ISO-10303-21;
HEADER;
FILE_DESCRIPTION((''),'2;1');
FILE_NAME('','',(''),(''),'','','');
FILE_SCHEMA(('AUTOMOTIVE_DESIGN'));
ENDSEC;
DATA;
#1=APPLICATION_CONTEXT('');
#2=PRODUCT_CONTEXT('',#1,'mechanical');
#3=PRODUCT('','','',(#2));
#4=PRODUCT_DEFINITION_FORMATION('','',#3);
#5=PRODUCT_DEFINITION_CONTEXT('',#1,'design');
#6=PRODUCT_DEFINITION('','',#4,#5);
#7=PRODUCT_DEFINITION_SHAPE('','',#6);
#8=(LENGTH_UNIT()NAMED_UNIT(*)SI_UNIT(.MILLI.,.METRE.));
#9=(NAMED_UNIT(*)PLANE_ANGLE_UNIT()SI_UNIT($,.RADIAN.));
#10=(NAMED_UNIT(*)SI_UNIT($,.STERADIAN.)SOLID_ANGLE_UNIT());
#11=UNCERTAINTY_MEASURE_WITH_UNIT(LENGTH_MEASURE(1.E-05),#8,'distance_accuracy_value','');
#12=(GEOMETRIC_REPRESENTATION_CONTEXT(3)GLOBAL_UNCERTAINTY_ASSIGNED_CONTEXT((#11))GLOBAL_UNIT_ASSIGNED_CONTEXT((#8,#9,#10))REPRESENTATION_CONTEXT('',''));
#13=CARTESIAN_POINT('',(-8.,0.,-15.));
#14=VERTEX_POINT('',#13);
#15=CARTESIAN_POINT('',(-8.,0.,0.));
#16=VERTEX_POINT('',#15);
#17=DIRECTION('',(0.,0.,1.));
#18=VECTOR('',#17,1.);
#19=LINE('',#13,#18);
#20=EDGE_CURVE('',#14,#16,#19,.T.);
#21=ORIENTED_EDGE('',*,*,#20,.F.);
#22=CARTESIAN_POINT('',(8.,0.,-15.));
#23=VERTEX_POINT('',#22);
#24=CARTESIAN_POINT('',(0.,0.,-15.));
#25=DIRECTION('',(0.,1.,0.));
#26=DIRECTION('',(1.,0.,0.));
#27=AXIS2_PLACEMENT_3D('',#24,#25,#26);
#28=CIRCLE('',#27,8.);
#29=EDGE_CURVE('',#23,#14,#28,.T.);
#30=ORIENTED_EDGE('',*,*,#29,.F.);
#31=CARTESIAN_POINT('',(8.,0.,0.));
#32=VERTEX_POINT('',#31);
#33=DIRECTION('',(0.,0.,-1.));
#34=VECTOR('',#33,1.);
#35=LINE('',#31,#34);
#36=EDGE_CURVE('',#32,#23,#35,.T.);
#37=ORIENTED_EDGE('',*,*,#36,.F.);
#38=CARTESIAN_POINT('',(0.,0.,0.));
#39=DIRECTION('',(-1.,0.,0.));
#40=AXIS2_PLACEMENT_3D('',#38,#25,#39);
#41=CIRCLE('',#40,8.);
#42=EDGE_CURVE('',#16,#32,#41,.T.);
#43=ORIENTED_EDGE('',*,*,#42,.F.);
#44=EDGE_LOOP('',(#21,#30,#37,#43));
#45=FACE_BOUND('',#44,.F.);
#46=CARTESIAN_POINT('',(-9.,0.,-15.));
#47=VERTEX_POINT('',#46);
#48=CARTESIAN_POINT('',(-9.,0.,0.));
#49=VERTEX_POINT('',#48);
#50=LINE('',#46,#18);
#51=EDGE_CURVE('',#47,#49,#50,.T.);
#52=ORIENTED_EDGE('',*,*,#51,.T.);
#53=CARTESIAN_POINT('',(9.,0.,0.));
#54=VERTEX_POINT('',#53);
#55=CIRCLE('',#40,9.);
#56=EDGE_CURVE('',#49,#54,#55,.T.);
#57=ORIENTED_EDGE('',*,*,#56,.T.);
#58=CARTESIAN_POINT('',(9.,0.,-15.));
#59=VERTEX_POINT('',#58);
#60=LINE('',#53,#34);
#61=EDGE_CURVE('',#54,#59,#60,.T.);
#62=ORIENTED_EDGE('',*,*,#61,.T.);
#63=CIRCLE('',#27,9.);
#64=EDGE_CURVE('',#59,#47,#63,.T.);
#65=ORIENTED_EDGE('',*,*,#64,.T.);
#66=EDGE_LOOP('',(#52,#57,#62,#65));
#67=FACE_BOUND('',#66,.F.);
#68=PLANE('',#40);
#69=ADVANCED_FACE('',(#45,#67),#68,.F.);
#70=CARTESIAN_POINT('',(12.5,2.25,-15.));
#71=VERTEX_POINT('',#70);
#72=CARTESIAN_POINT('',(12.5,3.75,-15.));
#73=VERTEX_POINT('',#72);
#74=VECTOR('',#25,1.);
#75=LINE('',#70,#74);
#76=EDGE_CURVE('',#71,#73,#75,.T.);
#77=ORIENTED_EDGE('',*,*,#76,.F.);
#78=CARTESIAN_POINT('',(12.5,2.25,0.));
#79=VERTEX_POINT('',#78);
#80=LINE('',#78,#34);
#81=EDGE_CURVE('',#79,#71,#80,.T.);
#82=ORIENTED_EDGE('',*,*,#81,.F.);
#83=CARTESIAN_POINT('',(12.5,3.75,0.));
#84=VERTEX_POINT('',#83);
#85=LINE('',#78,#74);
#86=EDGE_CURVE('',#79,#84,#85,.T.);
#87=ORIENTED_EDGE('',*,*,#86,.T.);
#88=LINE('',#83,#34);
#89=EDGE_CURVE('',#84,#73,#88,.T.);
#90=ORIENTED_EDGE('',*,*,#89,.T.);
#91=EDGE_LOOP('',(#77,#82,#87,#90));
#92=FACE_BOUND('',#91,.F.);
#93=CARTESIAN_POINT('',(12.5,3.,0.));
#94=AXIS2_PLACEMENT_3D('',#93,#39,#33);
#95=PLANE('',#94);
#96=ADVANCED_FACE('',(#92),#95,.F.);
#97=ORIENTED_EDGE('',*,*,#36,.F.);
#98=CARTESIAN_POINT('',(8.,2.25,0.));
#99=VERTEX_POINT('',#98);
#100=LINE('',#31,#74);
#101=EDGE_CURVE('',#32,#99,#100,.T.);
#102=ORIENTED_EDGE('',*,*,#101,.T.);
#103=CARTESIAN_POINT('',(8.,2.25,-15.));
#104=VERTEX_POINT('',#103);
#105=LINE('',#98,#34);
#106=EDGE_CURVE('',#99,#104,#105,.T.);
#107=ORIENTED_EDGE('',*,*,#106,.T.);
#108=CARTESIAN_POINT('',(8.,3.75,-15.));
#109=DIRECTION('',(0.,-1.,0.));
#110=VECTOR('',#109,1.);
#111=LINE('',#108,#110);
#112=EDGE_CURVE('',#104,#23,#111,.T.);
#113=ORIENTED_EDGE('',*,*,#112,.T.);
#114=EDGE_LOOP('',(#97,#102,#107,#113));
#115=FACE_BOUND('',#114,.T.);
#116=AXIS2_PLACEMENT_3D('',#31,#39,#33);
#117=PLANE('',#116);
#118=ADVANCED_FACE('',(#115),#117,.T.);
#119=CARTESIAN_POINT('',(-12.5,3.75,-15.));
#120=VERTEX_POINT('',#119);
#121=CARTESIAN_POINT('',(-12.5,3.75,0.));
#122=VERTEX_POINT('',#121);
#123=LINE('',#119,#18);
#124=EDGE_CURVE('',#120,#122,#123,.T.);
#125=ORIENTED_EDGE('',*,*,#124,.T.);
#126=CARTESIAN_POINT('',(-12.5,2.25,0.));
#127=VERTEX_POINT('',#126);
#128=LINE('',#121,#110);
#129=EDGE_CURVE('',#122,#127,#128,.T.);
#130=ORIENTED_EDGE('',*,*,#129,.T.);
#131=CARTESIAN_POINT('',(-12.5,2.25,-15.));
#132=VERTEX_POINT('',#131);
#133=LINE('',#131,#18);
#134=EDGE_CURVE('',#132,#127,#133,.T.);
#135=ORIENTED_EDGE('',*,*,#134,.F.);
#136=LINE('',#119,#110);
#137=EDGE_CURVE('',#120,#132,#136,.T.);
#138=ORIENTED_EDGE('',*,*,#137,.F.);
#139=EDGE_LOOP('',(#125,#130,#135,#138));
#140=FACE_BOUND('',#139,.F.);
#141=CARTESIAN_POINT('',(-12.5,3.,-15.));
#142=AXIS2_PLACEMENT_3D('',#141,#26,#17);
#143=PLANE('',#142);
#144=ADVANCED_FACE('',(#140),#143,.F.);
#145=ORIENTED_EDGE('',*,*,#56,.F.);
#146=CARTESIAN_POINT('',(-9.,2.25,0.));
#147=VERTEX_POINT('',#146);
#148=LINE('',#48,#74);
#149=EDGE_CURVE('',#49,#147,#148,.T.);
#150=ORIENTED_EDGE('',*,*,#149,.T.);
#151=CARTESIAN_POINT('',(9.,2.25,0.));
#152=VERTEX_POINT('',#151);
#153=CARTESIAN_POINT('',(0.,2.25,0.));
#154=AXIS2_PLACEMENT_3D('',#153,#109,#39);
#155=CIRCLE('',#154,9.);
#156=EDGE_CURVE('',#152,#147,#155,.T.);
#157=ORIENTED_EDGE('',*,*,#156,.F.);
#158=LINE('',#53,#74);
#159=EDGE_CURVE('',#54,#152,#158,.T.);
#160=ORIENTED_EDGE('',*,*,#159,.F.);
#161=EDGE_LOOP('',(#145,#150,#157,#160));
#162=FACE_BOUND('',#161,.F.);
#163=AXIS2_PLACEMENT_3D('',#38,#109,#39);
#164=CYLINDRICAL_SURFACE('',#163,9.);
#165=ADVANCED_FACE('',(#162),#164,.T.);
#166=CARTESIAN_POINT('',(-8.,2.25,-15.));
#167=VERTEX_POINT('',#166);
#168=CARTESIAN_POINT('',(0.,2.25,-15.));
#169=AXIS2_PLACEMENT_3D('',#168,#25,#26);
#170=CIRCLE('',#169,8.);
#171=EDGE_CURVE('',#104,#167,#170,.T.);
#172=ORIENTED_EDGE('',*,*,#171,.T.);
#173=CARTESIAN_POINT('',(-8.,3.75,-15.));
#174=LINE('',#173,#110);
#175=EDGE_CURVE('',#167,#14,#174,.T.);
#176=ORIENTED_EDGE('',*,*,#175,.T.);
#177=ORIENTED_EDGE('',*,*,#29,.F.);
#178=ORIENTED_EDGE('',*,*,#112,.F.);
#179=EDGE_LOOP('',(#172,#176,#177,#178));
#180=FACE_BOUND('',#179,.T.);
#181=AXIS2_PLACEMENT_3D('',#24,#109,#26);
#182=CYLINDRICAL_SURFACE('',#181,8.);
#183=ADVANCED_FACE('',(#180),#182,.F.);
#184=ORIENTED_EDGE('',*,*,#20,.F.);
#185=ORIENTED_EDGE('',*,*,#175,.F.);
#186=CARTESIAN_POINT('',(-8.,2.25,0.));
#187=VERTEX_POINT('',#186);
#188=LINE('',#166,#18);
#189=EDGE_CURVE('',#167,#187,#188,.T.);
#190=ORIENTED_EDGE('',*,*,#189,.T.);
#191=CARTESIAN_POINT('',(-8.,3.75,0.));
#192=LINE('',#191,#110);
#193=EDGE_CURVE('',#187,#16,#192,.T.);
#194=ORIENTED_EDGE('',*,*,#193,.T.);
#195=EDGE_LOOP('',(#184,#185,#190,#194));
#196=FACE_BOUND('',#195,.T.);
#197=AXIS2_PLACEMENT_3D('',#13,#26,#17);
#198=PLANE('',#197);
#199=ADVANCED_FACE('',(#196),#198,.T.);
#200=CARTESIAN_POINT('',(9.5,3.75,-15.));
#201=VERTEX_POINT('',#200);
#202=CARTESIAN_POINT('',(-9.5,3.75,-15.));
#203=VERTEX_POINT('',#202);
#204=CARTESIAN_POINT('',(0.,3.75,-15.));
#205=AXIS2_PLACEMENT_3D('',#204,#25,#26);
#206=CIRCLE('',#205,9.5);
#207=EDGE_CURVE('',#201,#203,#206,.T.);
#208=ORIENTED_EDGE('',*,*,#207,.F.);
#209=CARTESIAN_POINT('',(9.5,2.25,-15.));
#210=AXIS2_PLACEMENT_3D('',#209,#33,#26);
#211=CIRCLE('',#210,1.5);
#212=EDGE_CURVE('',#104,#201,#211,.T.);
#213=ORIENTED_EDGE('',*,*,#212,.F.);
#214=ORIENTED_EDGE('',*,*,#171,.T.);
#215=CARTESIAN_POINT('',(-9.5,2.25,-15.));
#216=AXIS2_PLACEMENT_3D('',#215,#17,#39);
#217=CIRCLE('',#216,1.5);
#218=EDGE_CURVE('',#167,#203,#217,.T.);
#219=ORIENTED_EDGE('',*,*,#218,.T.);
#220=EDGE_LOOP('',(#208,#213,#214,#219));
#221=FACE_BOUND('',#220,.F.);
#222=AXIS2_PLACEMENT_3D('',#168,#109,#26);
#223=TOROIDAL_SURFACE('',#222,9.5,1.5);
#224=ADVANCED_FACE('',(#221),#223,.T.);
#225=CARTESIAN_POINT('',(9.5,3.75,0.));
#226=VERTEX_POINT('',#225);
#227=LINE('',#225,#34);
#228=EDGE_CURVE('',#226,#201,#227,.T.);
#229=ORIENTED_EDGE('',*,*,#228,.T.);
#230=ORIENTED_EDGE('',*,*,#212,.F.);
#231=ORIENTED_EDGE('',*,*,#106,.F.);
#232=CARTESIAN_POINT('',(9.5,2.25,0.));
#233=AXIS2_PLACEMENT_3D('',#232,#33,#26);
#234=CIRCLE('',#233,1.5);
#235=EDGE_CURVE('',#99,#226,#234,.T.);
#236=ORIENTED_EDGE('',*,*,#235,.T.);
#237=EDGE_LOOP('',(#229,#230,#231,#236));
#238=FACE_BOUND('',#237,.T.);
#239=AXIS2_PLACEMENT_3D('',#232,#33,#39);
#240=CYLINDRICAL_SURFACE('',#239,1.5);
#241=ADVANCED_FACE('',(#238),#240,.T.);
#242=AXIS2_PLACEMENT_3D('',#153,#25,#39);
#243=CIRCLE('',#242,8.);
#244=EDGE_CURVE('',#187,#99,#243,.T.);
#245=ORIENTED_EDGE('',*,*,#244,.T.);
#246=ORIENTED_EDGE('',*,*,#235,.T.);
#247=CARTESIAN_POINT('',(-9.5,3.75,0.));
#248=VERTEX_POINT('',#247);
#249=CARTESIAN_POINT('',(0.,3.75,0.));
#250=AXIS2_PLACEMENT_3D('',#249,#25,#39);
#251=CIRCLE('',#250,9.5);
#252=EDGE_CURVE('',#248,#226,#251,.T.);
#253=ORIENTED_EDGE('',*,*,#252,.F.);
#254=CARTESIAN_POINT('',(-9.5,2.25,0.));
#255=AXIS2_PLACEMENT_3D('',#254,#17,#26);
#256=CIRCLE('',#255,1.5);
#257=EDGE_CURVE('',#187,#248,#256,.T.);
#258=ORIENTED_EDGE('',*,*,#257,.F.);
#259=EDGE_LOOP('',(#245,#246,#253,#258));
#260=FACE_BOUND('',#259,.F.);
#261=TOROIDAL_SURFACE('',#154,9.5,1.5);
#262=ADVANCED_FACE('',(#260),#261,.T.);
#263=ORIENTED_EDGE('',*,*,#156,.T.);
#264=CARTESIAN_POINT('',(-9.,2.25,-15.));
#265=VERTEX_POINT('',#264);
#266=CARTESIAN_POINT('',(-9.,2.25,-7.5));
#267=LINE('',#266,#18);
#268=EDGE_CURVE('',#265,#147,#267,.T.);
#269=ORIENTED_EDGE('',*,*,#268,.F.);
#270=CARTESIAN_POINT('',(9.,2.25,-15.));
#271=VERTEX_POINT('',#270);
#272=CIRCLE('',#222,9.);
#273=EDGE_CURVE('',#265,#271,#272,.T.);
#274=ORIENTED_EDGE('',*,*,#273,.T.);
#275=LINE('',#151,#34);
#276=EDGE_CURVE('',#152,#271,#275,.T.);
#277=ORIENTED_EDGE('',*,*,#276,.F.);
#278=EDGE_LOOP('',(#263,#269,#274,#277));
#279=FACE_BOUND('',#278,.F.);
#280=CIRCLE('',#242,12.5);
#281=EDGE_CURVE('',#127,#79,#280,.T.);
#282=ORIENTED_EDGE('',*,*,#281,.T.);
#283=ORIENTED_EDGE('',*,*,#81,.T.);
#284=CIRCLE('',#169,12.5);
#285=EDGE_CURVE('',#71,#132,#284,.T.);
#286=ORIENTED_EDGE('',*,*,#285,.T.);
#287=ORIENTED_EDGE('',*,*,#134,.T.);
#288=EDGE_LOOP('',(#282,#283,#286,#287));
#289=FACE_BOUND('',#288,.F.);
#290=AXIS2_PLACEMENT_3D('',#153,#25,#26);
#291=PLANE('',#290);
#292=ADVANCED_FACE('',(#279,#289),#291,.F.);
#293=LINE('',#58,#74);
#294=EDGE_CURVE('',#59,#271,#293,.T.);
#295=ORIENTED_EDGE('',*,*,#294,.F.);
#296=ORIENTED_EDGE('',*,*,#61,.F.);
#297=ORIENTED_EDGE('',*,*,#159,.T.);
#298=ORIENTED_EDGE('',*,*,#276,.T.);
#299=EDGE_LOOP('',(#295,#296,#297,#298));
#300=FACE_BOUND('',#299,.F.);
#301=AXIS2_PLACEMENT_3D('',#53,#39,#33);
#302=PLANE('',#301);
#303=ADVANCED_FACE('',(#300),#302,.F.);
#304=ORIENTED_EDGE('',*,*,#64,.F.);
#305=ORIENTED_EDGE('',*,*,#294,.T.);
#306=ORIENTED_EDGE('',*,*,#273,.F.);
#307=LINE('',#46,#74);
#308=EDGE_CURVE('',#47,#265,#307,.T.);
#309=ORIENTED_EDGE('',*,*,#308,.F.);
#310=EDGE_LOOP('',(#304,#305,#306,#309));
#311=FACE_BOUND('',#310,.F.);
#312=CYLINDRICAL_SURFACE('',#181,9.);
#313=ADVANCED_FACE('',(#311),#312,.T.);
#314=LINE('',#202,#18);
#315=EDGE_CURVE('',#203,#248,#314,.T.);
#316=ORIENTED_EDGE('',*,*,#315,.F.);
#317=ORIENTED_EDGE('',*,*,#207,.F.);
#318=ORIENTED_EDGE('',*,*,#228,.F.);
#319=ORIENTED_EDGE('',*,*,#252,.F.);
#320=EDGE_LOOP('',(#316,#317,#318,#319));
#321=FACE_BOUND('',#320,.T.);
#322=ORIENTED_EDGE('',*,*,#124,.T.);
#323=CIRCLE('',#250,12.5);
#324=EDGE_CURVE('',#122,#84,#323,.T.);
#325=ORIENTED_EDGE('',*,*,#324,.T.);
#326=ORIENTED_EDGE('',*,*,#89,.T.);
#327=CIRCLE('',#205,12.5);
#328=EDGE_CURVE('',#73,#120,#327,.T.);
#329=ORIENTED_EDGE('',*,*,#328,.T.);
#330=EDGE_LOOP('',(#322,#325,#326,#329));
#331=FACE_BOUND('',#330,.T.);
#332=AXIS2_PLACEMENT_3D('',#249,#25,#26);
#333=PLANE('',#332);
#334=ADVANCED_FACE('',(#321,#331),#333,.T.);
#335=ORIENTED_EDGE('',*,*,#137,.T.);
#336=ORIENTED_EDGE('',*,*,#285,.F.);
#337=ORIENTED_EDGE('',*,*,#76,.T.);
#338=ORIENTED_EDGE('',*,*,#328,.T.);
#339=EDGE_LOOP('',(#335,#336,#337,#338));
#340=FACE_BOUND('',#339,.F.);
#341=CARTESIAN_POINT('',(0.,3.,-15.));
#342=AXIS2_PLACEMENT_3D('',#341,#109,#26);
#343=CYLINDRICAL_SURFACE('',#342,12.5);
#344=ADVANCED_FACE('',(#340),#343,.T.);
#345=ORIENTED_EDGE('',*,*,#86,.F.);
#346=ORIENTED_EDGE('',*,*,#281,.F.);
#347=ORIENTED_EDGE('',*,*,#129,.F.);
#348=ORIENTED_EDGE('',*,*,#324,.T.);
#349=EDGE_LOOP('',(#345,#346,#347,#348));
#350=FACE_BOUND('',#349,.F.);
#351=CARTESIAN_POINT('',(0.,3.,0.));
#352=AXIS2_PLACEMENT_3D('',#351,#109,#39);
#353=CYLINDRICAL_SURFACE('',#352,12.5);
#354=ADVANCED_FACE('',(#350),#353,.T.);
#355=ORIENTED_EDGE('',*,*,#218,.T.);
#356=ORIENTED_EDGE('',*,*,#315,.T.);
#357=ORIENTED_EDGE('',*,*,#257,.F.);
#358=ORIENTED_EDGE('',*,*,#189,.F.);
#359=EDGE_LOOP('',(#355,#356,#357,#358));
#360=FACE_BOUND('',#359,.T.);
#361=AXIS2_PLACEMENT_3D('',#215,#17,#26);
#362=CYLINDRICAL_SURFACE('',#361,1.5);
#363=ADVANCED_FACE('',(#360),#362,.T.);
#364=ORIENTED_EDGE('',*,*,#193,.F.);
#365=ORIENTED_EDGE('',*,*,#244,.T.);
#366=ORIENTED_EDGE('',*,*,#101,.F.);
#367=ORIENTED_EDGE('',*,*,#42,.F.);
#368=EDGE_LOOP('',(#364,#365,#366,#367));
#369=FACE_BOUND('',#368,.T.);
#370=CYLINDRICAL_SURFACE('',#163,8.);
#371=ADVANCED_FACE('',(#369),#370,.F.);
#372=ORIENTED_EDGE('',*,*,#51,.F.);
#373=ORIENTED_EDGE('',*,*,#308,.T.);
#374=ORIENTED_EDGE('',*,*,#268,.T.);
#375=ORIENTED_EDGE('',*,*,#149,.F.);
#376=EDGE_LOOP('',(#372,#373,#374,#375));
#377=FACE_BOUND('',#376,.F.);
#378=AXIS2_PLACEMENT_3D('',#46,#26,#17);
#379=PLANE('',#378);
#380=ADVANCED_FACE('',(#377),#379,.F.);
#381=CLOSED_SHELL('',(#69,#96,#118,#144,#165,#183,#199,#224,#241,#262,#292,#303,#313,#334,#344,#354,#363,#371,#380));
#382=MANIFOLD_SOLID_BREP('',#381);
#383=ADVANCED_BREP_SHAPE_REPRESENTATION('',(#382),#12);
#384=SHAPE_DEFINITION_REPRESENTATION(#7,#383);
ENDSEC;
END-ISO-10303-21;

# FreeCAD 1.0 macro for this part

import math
import FreeCAD as App
import Part
import Sketcher
Q = App.Units.Quantity


def edges_at(feature, points):
    """Names of the edges that pass closest to the given points."""
    edges = feature.Shape.Edges
    near = lambda p: min(range(len(edges)), key=lambda i: edges[i].distToShape(Part.Vertex(*p))[0])
    return sorted({f"Edge{near(p) + 1}" for p in points})

doc = App.newDocument("Part")
params = doc.addObject("Spreadsheet::Sheet", "Params")
for row, (alias, value) in enumerate([
    ("sketch1_radius", "9 mm"),
    ("sketch1_radius2", "8 mm"),
    ("sketch1_height", "15 mm"),
    ("pad1_length", "3 mm"),
    ("sketch2_radius", "8 mm"),
    ("sketch2_radius2", "12.5 mm"),
    ("sketch2_height", "15 mm"),
    ("pad2_length", "1.5 mm"),
    ("fillet_radius", "1.5 mm"),
], start=1):
    params.set(f"A{row}", alias)
    params.set(f"B{row}", "=" + value)
    params.setAlias(f"B{row}", alias)

body = doc.addObject("PartDesign::Body", "Body")

sketch1 = body.newObject("Sketcher::SketchObject", "Sketch")
sketch1.AttachmentSupport = (doc.getObject("XZ_Plane"), [""])
sketch1.MapMode = "FlatFace"
sketch1.addGeometry(Part.ArcOfCircle(Part.Circle(App.Vector(0, 0, 0), App.Vector(0, 0, 1), 9), math.radians(0), math.radians(180)), False)
sketch1.addGeometry(Part.LineSegment(App.Vector(9, 0, 0), App.Vector(9, -15, 0)), False)
sketch1.addGeometry(Part.ArcOfCircle(Part.Circle(App.Vector(0, -15, 0), App.Vector(0, 0, 1), 9), math.radians(180), math.radians(360)), False)
sketch1.addGeometry(Part.LineSegment(App.Vector(-9, -15, 0), App.Vector(-9, 0, 0)), False)
sketch1.addGeometry(Part.LineSegment(App.Vector(8, -15, 0), App.Vector(8, 0, 0)), False)
sketch1.addGeometry(Part.ArcOfCircle(Part.Circle(App.Vector(0, 0, 0), App.Vector(0, 0, 1), 8), math.radians(0), math.radians(180)), False)
sketch1.addGeometry(Part.LineSegment(App.Vector(-8, 0, 0), App.Vector(-8, -15, 0)), False)
sketch1.addGeometry(Part.ArcOfCircle(Part.Circle(App.Vector(0, -15, 0), App.Vector(0, 0, 1), 8), math.radians(180), math.radians(360)), False)
sketch1.addConstraint(Sketcher.Constraint("Tangent", 0, 1, 1, 1))
sketch1.addConstraint(Sketcher.Constraint("Tangent", 1, 2, 2, 2))
sketch1.addConstraint(Sketcher.Constraint("Tangent", 2, 1, 3, 1))
sketch1.addConstraint(Sketcher.Constraint("Tangent", 3, 2, 0, 2))
sketch1.addConstraint(Sketcher.Constraint("Tangent", 4, 2, 5, 1))
sketch1.addConstraint(Sketcher.Constraint("Tangent", 5, 2, 6, 1))
sketch1.addConstraint(Sketcher.Constraint("Tangent", 6, 2, 7, 1))
sketch1.addConstraint(Sketcher.Constraint("Tangent", 7, 2, 4, 1))
sketch1.addConstraint(Sketcher.Constraint("Vertical", 1))
sketch1.addConstraint(Sketcher.Constraint("Vertical", 3))
sketch1.addConstraint(Sketcher.Constraint("Vertical", 4))
sketch1.addConstraint(Sketcher.Constraint("Vertical", 6))
sketch1.addConstraint(Sketcher.Constraint("Coincident", 0, 3, -1, 1))
sketch1.addConstraint(Sketcher.Constraint("Coincident", 5, 3, -1, 1))
sketch1.addConstraint(Sketcher.Constraint("Horizontal", 7, 3, 1, 2))
sketch1.addConstraint(Sketcher.Constraint("Radius", 0, Q("9 mm")))
sketch1.addConstraint(Sketcher.Constraint("Radius", 5, Q("8 mm")))
sketch1.addConstraint(Sketcher.Constraint("DistanceY", 1, 2, 1, 1, Q("15 mm")))
sketch1.setExpression("Constraints[15]", "Params.sketch1_radius")
sketch1.setExpression("Constraints[16]", "Params.sketch1_radius2")
sketch1.setExpression("Constraints[17]", "Params.sketch1_height")
pad1 = body.newObject("PartDesign::Pad", "Pad")
pad1.Profile = sketch1
pad1.setExpression("Length", "Params.pad1_length")
pad1.Reversed = True

sketch2 = body.newObject("Sketcher::SketchObject", "Sketch001")
sketch2.AttachmentSupport = (doc.getObject("XZ_Plane"), [""])
sketch2.MapMode = "FlatFace"
sketch2.AttachmentOffset = App.Placement(App.Vector(0, 0, -3), App.Rotation())
sketch2.addGeometry(Part.ArcOfCircle(Part.Circle(App.Vector(0, 0, 0), App.Vector(0, 0, 1), 12), math.radians(0), math.radians(180)), False)
sketch2.addGeometry(Part.LineSegment(App.Vector(12, 0, 0), App.Vector(12, -15, 0)), False)
sketch2.addGeometry(Part.ArcOfCircle(Part.Circle(App.Vector(0, -15, 0), App.Vector(0, 0, 1), 12), math.radians(180), math.radians(360)), False)
sketch2.addGeometry(Part.LineSegment(App.Vector(-12, -15, 0), App.Vector(-12, 0, 0)), False)
sketch2.addGeometry(Part.LineSegment(App.Vector(8, -15, 0), App.Vector(8, 0, 0)), False)
sketch2.addGeometry(Part.ArcOfCircle(Part.Circle(App.Vector(0, 0, 0), App.Vector(0, 0, 1), 8), math.radians(0), math.radians(180)), False)
sketch2.addGeometry(Part.LineSegment(App.Vector(-8, 0, 0), App.Vector(-8, -15, 0)), False)
sketch2.addGeometry(Part.ArcOfCircle(Part.Circle(App.Vector(0, -15, 0), App.Vector(0, 0, 1), 8), math.radians(180), math.radians(360)), False)
sketch2.addConstraint(Sketcher.Constraint("Tangent", 0, 1, 1, 1))
sketch2.addConstraint(Sketcher.Constraint("Tangent", 1, 2, 2, 2))
sketch2.addConstraint(Sketcher.Constraint("Tangent", 2, 1, 3, 1))
sketch2.addConstraint(Sketcher.Constraint("Tangent", 3, 2, 0, 2))
sketch2.addConstraint(Sketcher.Constraint("Tangent", 4, 2, 5, 1))
sketch2.addConstraint(Sketcher.Constraint("Tangent", 5, 2, 6, 1))
sketch2.addConstraint(Sketcher.Constraint("Tangent", 6, 2, 7, 1))
sketch2.addConstraint(Sketcher.Constraint("Tangent", 7, 2, 4, 1))
sketch2.addConstraint(Sketcher.Constraint("Vertical", 1))
sketch2.addConstraint(Sketcher.Constraint("Vertical", 3))
sketch2.addConstraint(Sketcher.Constraint("Vertical", 4))
sketch2.addConstraint(Sketcher.Constraint("Vertical", 6))
sketch2.addConstraint(Sketcher.Constraint("Coincident", 0, 3, -1, 1))
sketch2.addConstraint(Sketcher.Constraint("Coincident", 5, 3, -1, 1))
sketch2.addConstraint(Sketcher.Constraint("Horizontal", 7, 3, 1, 2))
sketch2.addConstraint(Sketcher.Constraint("Radius", 5, Q("8 mm")))
sketch2.addConstraint(Sketcher.Constraint("Radius", 0, Q("12.5 mm")))
sketch2.addConstraint(Sketcher.Constraint("DistanceY", 1, 2, 1, 1, Q("15 mm")))
sketch2.setExpression("Constraints[15]", "Params.sketch2_radius")
sketch2.setExpression("Constraints[16]", "Params.sketch2_radius2")
sketch2.setExpression("Constraints[17]", "Params.sketch2_height")
pad2 = body.newObject("PartDesign::Pad", "Pad001")
pad2.Profile = sketch2
pad2.setExpression("Length", "Params.pad2_length")
pad2.Midplane = True
doc.recompute()

fillet = body.newObject("PartDesign::Fillet", "Fillet")
fillet.Base = (pad2, edges_at(pad2, [
    (0, 3.75, -23),
    (8, 3.75, -7.5),
    (0, 3.75, 8),
    (-8, 3.75, -7.5),
]))
fillet.setExpression("Radius", "Params.fillet_radius")

doc.recompute()
